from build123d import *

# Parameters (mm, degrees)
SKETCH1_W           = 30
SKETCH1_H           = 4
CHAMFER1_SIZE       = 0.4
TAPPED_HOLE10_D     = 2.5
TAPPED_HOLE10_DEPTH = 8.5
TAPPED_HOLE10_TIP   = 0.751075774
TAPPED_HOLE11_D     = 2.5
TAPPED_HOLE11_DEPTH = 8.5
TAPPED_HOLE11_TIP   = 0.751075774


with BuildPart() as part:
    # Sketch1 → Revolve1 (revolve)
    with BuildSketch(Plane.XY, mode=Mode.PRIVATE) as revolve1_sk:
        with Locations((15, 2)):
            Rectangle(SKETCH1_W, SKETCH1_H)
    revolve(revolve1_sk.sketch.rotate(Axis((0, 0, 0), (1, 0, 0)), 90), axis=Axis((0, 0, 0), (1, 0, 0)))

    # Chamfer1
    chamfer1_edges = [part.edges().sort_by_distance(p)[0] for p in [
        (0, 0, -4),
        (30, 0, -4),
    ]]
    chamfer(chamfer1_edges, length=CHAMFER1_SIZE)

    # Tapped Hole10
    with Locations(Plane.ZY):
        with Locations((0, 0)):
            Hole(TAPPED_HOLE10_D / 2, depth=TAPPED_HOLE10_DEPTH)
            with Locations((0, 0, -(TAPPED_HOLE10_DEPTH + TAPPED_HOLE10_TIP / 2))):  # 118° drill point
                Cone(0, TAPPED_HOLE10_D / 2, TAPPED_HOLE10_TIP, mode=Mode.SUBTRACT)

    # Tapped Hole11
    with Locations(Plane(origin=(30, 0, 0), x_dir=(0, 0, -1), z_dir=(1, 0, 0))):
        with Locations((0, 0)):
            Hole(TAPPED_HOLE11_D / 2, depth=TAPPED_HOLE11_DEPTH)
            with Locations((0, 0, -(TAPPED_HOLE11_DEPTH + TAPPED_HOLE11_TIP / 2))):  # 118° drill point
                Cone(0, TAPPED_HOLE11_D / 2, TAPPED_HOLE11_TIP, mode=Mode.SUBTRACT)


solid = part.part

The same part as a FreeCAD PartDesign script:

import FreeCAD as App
import Part
import Sketcher

V = App.Vector
Q = App.Units.Quantity


def edges_at(feature, points):
    """Names of the edges that pass closest to the given points."""
    edges = feature.Shape.Edges
    near = lambda p: min(range(len(edges)), key=lambda i: edges[i].distToShape(Part.Vertex(*p))[0])
    return sorted({f"Edge{near(p) + 1}" for p in points})


def add_polygon(sketch, points):
    """Adds a closed chain of lines whose ends are joined by coincident constraints."""
    first, n = sketch.GeometryCount, len(points)
    for a, b in zip(points, points[1:] + points[:1]):
        sketch.addGeometry(Part.LineSegment(App.Vector(*a, 0), App.Vector(*b, 0)), False)
    for i in range(n):
        sketch.addConstraint(Sketcher.Constraint("Coincident", first + i, 2, first + (i + 1) % n, 1))

doc = App.newDocument("Part")
body = doc.addObject("PartDesign::Body", "Body")

# Sketch on XY plane
sketch1 = body.newObject("Sketcher::SketchObject", "Sketch")
sketch1.AttachmentSupport = (doc.getObject("XY_Plane"), [""])
sketch1.MapMode = "FlatFace"
add_polygon(sketch1, [(0, 4), (0, 0), (30, 0), (30, 4)])  # lines 0-3
sketch1.addConstraint(Sketcher.Constraint("Vertical", 0))
sketch1.addConstraint(Sketcher.Constraint("Horizontal", 1))
sketch1.addConstraint(Sketcher.Constraint("Vertical", 2))
sketch1.addConstraint(Sketcher.Constraint("Horizontal", 3))
sketch1.addConstraint(Sketcher.Constraint("Coincident", 0, 2, -1, 1))
sketch1.addConstraint(Sketcher.Constraint("DistanceX", 1, 1, 1, 2, Q("30 mm")))
sketch1.addConstraint(Sketcher.Constraint("DistanceY", 0, 2, 0, 1, Q("4 mm")))
revolution = body.newObject("PartDesign::Revolution", "Revolution")
revolution.Profile = sketch1
revolution.ReferenceAxis = (sketch1, ["H_Axis"])
revolution.Angle = 360
doc.recompute()

chamfer = body.newObject("PartDesign::Chamfer", "Chamfer")
chamfer.Base = (revolution, edges_at(revolution, [(0, 0, -4), (30, 0, -4)]))
chamfer.Size = 0.4

# Sketch on YZ plane
sketch2 = body.newObject("Sketcher::SketchObject", "Sketch001")
sketch2.AttachmentSupport = (doc.getObject("YZ_Plane"), [""])
sketch2.MapMode = "FlatFace"
sketch2.addGeometry(Part.Circle(V(0, 0, 0), V(0, 0, 1), 1.25), False)
sketch2.addConstraint(Sketcher.Constraint("Coincident", 0, 3, -1, 1))
sketch2.addConstraint(Sketcher.Constraint("Diameter", 0, Q("2.5 mm")))
doc.recompute()
hole = body.newObject("PartDesign::Hole", "Hole")
hole.Profile = sketch2
hole.ThreadType = "None"
hole.Diameter = 2.5
hole.DepthType = "Dimension"
hole.Depth = 8.5
hole.DrillPoint = "Angled"
hole.DrillPointAngle = 118
hole.Reversed = True

# Sketch on YZ plane
sketch3 = body.newObject("Sketcher::SketchObject", "Sketch002")
sketch3.AttachmentSupport = (doc.getObject("YZ_Plane"), [""])
sketch3.MapMode = "FlatFace"
sketch3.AttachmentOffset = App.Placement(V(0, 0, 30), App.Rotation())
sketch3.addGeometry(Part.Circle(V(0, 0, 0), V(0, 0, 1), 1.25), False)
sketch3.addConstraint(Sketcher.Constraint("Coincident", 0, 3, -1, 1))
sketch3.addConstraint(Sketcher.Constraint("Diameter", 0, Q("2.5 mm")))
doc.recompute()
hole2 = body.newObject("PartDesign::Hole", "Hole001")
hole2.Profile = sketch3
hole2.ThreadType = "None"
hole2.Diameter = 2.5
hole2.DepthType = "Dimension"
hole2.Depth = 8.5
hole2.DrillPoint = "Angled"
hole2.DrillPointAngle = 118

doc.recompute()
